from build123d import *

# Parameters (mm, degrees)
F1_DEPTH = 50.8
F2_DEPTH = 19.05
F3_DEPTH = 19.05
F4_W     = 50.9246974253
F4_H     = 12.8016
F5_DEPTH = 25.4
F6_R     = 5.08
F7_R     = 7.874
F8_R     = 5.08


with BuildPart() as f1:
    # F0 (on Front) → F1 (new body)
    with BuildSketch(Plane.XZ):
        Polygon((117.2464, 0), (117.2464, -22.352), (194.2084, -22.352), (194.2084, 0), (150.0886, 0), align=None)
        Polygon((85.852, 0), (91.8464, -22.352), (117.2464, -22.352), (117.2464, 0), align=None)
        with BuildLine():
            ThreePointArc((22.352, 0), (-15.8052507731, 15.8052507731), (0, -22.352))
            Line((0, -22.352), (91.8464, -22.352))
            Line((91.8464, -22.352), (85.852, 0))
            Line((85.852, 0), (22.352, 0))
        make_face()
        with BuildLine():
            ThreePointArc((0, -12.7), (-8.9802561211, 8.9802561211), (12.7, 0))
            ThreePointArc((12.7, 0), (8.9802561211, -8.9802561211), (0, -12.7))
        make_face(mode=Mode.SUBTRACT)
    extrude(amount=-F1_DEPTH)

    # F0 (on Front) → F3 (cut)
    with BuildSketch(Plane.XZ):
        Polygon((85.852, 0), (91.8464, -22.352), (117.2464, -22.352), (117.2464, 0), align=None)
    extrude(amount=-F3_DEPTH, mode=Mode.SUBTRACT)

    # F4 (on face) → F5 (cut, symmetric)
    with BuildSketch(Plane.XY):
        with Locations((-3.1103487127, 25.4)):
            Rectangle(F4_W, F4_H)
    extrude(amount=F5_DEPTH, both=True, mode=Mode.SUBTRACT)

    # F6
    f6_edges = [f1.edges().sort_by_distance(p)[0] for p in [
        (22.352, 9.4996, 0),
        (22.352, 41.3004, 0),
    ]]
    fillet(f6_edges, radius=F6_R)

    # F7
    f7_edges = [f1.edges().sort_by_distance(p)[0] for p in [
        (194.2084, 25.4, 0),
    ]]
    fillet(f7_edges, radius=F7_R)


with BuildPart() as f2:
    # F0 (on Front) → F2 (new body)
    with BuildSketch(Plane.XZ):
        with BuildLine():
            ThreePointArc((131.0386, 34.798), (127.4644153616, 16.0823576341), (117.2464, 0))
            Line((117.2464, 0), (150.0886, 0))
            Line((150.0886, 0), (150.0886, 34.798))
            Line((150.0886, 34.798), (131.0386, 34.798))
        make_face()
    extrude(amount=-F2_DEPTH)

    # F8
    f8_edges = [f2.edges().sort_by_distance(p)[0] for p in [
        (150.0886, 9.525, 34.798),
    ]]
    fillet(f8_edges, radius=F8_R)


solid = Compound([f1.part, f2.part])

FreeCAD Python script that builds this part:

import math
import FreeCAD as App
import Part
import Sketcher
Q = App.Units.Quantity


def edges_at(feature, points):
    """Names of the edges that pass closest to the given points."""
    edges = feature.Shape.Edges
    near = lambda p: min(range(len(edges)), key=lambda i: edges[i].distToShape(Part.Vertex(*p))[0])
    return sorted({f"Edge{near(p) + 1}" for p in points})


def add_polygon(sketch, points):
    """Adds a closed chain of lines whose ends are joined by coincident constraints."""
    first, n = sketch.GeometryCount, len(points)
    for a, b in zip(points, points[1:] + points[:1]):
        sketch.addGeometry(Part.LineSegment(App.Vector(*a, 0), App.Vector(*b, 0)), False)
    for i in range(n):
        sketch.addConstraint(Sketcher.Constraint("Coincident", first + i, 2, first + (i + 1) % n, 1))

doc = App.newDocument("Part")
body = doc.addObject("PartDesign::Body", "Body")

# Sketch on XZ plane
sketch1 = body.newObject("Sketcher::SketchObject", "Sketch")
sketch1.AttachmentSupport = (doc.getObject("XZ_Plane"), [""])
sketch1.MapMode = "FlatFace"
sketch1.addGeometry([
    Part.LineSegment(App.Vector(194, -22, 0), App.Vector(194, 0, 0)),  # 0
    Part.LineSegment(App.Vector(194, 0, 0), App.Vector(22, 0, 0)),  # 1
    Part.ArcOfCircle(Part.Circle(App.Vector(0, 0, 0), App.Vector(0, 0, 1), 22), math.radians(0), math.radians(270)),  # 2
    Part.LineSegment(App.Vector(0, -22, 0), App.Vector(194, -22, 0)),  # 3
    Part.ArcOfCircle(Part.Circle(App.Vector(0, 0, 0), App.Vector(0, 0, 1), 13), math.radians(-90), math.radians(0)),  # 4
    Part.ArcOfCircle(Part.Circle(App.Vector(0, 0, 0), App.Vector(0, 0, 1), 13), math.radians(0), math.radians(270)),  # 5
], False)
sketch1.addConstraint([
    Sketcher.Constraint("Coincident", 0, 2, 1, 1),
    Sketcher.Constraint("Coincident", 1, 2, 2, 1),
    Sketcher.Constraint("Tangent", 2, 2, 3, 1),
    Sketcher.Constraint("Coincident", 3, 2, 0, 1),
    Sketcher.Constraint("Tangent", 4, 1, 5, 2),
    Sketcher.Constraint("Coincident", 5, 1, 4, 2),
    Sketcher.Constraint("Vertical", 0),
    Sketcher.Constraint("Horizontal", 1),
    Sketcher.Constraint("Horizontal", 3),
    Sketcher.Constraint("Coincident", 2, 3, -1, 1),
    Sketcher.Constraint("Coincident", 4, 3, -1, 1),
    Sketcher.Constraint("PointOnObject", 0, 2, -1),
    Sketcher.Constraint("PointOnObject", 4, 1, -2),
    Sketcher.Constraint("PointOnObject", 5, 1, -1),
    Sketcher.Constraint("Radius", 4, Q("0.5 in")),
    Sketcher.Constraint("Radius", 2, Q("0.88 in")),
    Sketcher.Constraint("DistanceX", 1, 2, 1, 1, Q("6.766 in")),
])
pad1 = body.newObject("PartDesign::Pad", "Pad")
pad1.Profile = sketch1
pad1.Length = Q("2 in")
pad1.Reversed = True

# Sketch on XZ plane
sketch2 = body.newObject("Sketcher::SketchObject", "Sketch001")
sketch2.AttachmentSupport = (doc.getObject("XZ_Plane"), [""])
sketch2.MapMode = "FlatFace"
add_polygon(sketch2, [(86, 0), (92, -22), (117, -22), (117, 0)])  # lines 0-3
sketch2.addConstraint([
    Sketcher.Constraint("Horizontal", 1),
    Sketcher.Constraint("Vertical", 2),
    Sketcher.Constraint("Horizontal", 3),
    Sketcher.Constraint("PointOnObject", 2, 2, -1),
    Sketcher.Constraint("DistanceX", 1, 1, 1, 2, Q("1 in")),
    Sketcher.Constraint("DistanceY", 2, 1, 2, 2, Q("0.88 in")),
    Sketcher.Constraint("DistanceX", 3, 2, 3, 1, Q("1.236 in")),
    Sketcher.Constraint("DistanceX", -1, 1, 3, 2, Q("3.38 in")),
])
pocket1 = body.newObject("PartDesign::Pocket", "Pocket")
pocket1.Profile = sketch2
pocket1.Length = Q("0.75 in")

# Sketch on XY plane
sketch3 = body.newObject("Sketcher::SketchObject", "Sketch002")
sketch3.AttachmentSupport = (doc.getObject("XY_Plane"), [""])
sketch3.MapMode = "FlatFace"
add_polygon(sketch3, [(-29, 32), (-29, 19), (22, 19), (22, 32)])  # lines 0-3
sketch3.addConstraint([
    Sketcher.Constraint("Vertical", 0),
    Sketcher.Constraint("Horizontal", 1),
    Sketcher.Constraint("Vertical", 2),
    Sketcher.Constraint("Horizontal", 3),
    Sketcher.Constraint("DistanceY", 0, 2, 0, 1, Q("0.504 in")),
    Sketcher.Constraint("DistanceX", -1, 1, 1, 2, Q("0.88 in")),
    Sketcher.Constraint("DistanceY", -1, 1, 0, 2, Q("0.748 in")),
    Sketcher.Constraint("DistanceX", 1, 1, 1, 2, 50.924697),
])
pocket2 = body.newObject("PartDesign::Pocket", "Pocket001")
pocket2.Profile = sketch3
pocket2.Length = Q("2 in")
pocket2.Midplane = True
doc.recompute()

fillet = body.newObject("PartDesign::Fillet", "Fillet")
fillet.Base = (pocket2, edges_at(pocket2, [(22.352, 9.5, 0), (22.352, 41.3, 0)]))
fillet.Radius = Q("0.2 in")
doc.recompute()

fillet2 = body.newObject("PartDesign::Fillet", "Fillet001")
fillet2.Base = (fillet, edges_at(fillet, [(194.208, 25.4, 0)]))
fillet2.Radius = Q("0.31 in")
body2 = doc.addObject("PartDesign::Body", "Body001")

# Sketch on XZ plane
sketch4 = body2.newObject("Sketcher::SketchObject", "Sketch003")
sketch4.AttachmentSupport = (doc.getObject("XZ_Plane001"), [""])
sketch4.MapMode = "FlatFace"
sketch4.addGeometry([
    Part.ArcOfCircle(Part.Circle(App.Vector(80, 35, 0), App.Vector(0, 0, 1), 51), math.radians(-43), math.radians(0)),
    Part.LineSegment(App.Vector(117, 0, 0), App.Vector(150, 0, 0)),
    Part.LineSegment(App.Vector(150, 0, 0), App.Vector(150, 35, 0)),
    Part.LineSegment(App.Vector(150, 35, 0), App.Vector(131, 35, 0)),
], False)
sketch4.addConstraint([
    Sketcher.Constraint("Coincident", 0, 1, 1, 1),
    Sketcher.Constraint("Coincident", 1, 2, 2, 1),
    Sketcher.Constraint("Coincident", 2, 2, 3, 1),
    Sketcher.Constraint("Coincident", 3, 2, 0, 2),
    Sketcher.Constraint("Horizontal", 1),
    Sketcher.Constraint("Vertical", 2),
    Sketcher.Constraint("Horizontal", 3),
    Sketcher.Constraint("PointOnObject", 0, 1, -1),
    Sketcher.Constraint("Radius", 0, Q("2 in")),
    Sketcher.Constraint("DistanceX", 3, 2, 3, 1, Q("0.75 in")),
    Sketcher.Constraint("DistanceY", 2, 1, 2, 2, Q("1.37 in")),
    Sketcher.Constraint("DistanceX", 1, 1, 1, 2, Q("1.293 in")),
    Sketcher.Constraint("DistanceX", -1, 1, 0, 3, Q("3.159 in")),
])
pad2 = body2.newObject("PartDesign::Pad", "Pad001")
pad2.Profile = sketch4
pad2.Length = Q("0.75 in")
pad2.Reversed = True
doc.recompute()

fillet3 = body2.newObject("PartDesign::Fillet", "Fillet002")
fillet3.Base = (pad2, edges_at(pad2, [(150.089, 9.525, 34.798)]))
fillet3.Radius = Q("0.2 in")

doc.recompute()
